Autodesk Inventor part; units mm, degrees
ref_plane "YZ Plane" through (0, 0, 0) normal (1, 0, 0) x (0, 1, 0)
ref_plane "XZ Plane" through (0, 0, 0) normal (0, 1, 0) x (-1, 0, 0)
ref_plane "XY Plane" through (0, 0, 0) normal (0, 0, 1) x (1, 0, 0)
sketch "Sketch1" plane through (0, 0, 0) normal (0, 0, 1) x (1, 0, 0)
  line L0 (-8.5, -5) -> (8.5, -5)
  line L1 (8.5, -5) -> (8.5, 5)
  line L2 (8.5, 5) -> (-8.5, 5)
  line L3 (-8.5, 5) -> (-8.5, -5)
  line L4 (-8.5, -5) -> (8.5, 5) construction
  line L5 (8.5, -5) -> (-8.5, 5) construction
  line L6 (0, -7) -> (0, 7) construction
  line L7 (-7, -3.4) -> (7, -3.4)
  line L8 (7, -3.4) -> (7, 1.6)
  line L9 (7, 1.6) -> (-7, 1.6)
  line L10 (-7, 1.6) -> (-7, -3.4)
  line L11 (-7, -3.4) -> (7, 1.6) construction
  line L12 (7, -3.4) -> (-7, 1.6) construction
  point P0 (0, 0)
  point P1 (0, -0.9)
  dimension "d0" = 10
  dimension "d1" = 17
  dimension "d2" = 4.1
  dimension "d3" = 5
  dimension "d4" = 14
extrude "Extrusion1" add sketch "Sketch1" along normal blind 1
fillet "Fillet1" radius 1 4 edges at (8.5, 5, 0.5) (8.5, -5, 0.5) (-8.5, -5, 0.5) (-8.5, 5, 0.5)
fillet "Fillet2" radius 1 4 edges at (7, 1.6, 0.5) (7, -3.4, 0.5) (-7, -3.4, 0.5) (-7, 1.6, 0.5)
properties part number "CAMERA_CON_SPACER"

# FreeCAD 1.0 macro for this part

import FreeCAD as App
import Part
import Sketcher
from FreeCAD import Vector
Q = App.Units.Quantity


def edges_at(feature, points):
    """Names of the edges that pass closest to the given points."""
    edges = feature.Shape.Edges
    near = lambda p: min(range(len(edges)), key=lambda i: edges[i].distToShape(Part.Vertex(*p))[0])
    return sorted({f"Edge{near(p) + 1}" for p in points})


def add_polygon(sketch, points):
    """Adds a closed chain of lines whose ends are joined by coincident constraints."""
    first, n = sketch.GeometryCount, len(points)
    for a, b in zip(points, points[1:] + points[:1]):
        sketch.addGeometry(Part.LineSegment(App.Vector(*a, 0), App.Vector(*b, 0)), False)
    for i in range(n):
        sketch.addConstraint(Sketcher.Constraint("Coincident", first + i, 2, first + (i + 1) % n, 1))

doc = App.newDocument("Part")
params = doc.addObject("Spreadsheet::Sheet", "Params")
for row, (alias, value) in enumerate([
    ("sketch1_width", "17 mm"),
    ("sketch1_width2", "14 mm"),
    ("sketch1_height", "10 mm"),
    ("sketch1_height2", "5 mm"),
    ("pad1_length", "1 mm"),
    ("fillet_radius", "1 mm"),
    ("fillet2_radius", "1 mm"),
], start=1):
    params.set(f"A{row}", alias)
    params.set(f"B{row}", "=" + value)
    params.setAlias(f"B{row}", alias)

body = doc.addObject("PartDesign::Body", "Body")

sketch1 = body.newObject("Sketcher::SketchObject", "Sketch")
sketch1.AttachmentSupport = (doc.getObject("XY_Plane"), [""])
sketch1.MapMode = "FlatFace"
add_polygon(sketch1, [(-8, 5), (-8, -5), (8, -5), (8, 5)])
add_polygon(sketch1, [(7, -3), (-7, -3), (-7, 2), (7, 2)])
sketch1.addConstraint(Sketcher.Constraint("Vertical", 0))
sketch1.addConstraint(Sketcher.Constraint("Horizontal", 1))
sketch1.addConstraint(Sketcher.Constraint("Vertical", 2))
sketch1.addConstraint(Sketcher.Constraint("Horizontal", 3))
sketch1.addConstraint(Sketcher.Constraint("Horizontal", 4))
sketch1.addConstraint(Sketcher.Constraint("Vertical", 5))
sketch1.addConstraint(Sketcher.Constraint("Horizontal", 6))
sketch1.addConstraint(Sketcher.Constraint("Vertical", 7))
sketch1.addConstraint(Sketcher.Constraint("Symmetric", 0, 2, 2, 2, -1, 1))
sketch1.addConstraint(Sketcher.Constraint("DistanceX", 1, 1, 1, 2, Q("17 mm")))
sketch1.addConstraint(Sketcher.Constraint("DistanceX", 4, 2, 4, 1, Q("14 mm")))
sketch1.addConstraint(Sketcher.Constraint("DistanceY", 0, 2, 0, 1, Q("10 mm")))
sketch1.addConstraint(Sketcher.Constraint("DistanceY", 5, 1, 5, 2, Q("5 mm")))
sketch1.addConstraint(Sketcher.Constraint("DistanceX", 4, 2, -1, 1, Q("7 mm")))
sketch1.addConstraint(Sketcher.Constraint("DistanceY", 4, 2, -1, 1, Q("3.4 mm")))
sketch1.setExpression("Constraints[17]", "Params.sketch1_width")
sketch1.setExpression("Constraints[18]", "Params.sketch1_width2")
sketch1.setExpression("Constraints[19]", "Params.sketch1_height")
sketch1.setExpression("Constraints[20]", "Params.sketch1_height2")
pad1 = body.newObject("PartDesign::Pad", "Pad")
pad1.Profile = sketch1
pad1.setExpression("Length", "Params.pad1_length")
doc.recompute()

fillet = body.newObject("PartDesign::Fillet", "Fillet")
fillet.Base = (pad1, edges_at(pad1, [
    (8.5, 5, 0.5),
    (8.5, -5, 0.5),
    (-8.5, -5, 0.5),
    (-8.5, 5, 0.5),
]))
fillet.setExpression("Radius", "Params.fillet_radius")
doc.recompute()

fillet2 = body.newObject("PartDesign::Fillet", "Fillet001")
fillet2.Base = (fillet, edges_at(fillet, [
    (7, 1.6, 0.5),
    (7, -3.4, 0.5),
    (-7, -3.4, 0.5),
    (-7, 1.6, 0.5),
]))
fillet2.setExpression("Radius", "Params.fillet2_radius")

doc.recompute()
